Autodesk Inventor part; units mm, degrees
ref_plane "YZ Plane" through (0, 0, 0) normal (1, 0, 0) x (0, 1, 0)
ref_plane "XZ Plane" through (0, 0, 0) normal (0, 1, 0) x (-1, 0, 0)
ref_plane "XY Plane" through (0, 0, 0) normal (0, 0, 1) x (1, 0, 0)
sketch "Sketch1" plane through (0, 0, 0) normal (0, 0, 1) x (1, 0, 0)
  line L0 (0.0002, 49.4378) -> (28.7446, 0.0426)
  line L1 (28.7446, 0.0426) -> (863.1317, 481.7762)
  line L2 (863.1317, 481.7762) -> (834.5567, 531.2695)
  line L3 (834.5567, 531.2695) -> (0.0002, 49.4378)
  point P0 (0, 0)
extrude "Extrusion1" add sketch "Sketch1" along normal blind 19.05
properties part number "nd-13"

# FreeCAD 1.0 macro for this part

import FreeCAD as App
import Part
import Sketcher
from FreeCAD import Vector
Q = App.Units.Quantity

doc = App.newDocument("Part")
body = doc.addObject("PartDesign::Body", "Body")

# Sketch on XY plane
sketch1 = body.newObject("Sketcher::SketchObject", "Sketch")
sketch1.AttachmentSupport = (doc.getObject("XY_Plane"), [""])
sketch1.MapMode = "FlatFace"
sketch1.addGeometry(Part.LineSegment(Vector(835, 531, 0), Vector(0, 49, 0)), False)
sketch1.addGeometry(Part.LineSegment(Vector(0, 49, 0), Vector(29, 0, 0)), False)
sketch1.addGeometry(Part.LineSegment(Vector(29, 0, 0), Vector(863, 482, 0)), False)
sketch1.addGeometry(Part.LineSegment(Vector(863, 482, 0), Vector(835, 531, 0)), False)
sketch1.addConstraint(Sketcher.Constraint("Coincident", 0, 2, 1, 1))
sketch1.addConstraint(Sketcher.Constraint("Coincident", 1, 2, 2, 1))
sketch1.addConstraint(Sketcher.Constraint("Coincident", 2, 2, 3, 1))
sketch1.addConstraint(Sketcher.Constraint("Coincident", 3, 2, 0, 1))
sketch1.addConstraint(Sketcher.Constraint("Parallel", 0, 2))
sketch1.addConstraint(Sketcher.Constraint("Perpendicular", 2, 3))
sketch1.addConstraint(Sketcher.Constraint("DistanceX", -1, 1, 0, 2, Q("0 in")))
sketch1.addConstraint(Sketcher.Constraint("Angle", 0, Q("-150 deg")))
sketch1.addConstraint(Sketcher.Constraint("Distance", 1, Q("2.25 in")))
sketch1.addConstraint(Sketcher.Constraint("DistanceY", 1, 2, 0, 2, Q("1.9447 in")))
sketch1.addConstraint(Sketcher.Constraint("DistanceY", 1, 2, 2, 2, Q("18.9659 in")))
sketch1.addConstraint(Sketcher.Constraint("DistanceY", -1, 1, 0, 2, Q("49.4378 mm")))
pad1 = body.newObject("PartDesign::Pad", "Pad")
pad1.Profile = sketch1
pad1.Length = Q("0.75 in")

doc.recompute()
